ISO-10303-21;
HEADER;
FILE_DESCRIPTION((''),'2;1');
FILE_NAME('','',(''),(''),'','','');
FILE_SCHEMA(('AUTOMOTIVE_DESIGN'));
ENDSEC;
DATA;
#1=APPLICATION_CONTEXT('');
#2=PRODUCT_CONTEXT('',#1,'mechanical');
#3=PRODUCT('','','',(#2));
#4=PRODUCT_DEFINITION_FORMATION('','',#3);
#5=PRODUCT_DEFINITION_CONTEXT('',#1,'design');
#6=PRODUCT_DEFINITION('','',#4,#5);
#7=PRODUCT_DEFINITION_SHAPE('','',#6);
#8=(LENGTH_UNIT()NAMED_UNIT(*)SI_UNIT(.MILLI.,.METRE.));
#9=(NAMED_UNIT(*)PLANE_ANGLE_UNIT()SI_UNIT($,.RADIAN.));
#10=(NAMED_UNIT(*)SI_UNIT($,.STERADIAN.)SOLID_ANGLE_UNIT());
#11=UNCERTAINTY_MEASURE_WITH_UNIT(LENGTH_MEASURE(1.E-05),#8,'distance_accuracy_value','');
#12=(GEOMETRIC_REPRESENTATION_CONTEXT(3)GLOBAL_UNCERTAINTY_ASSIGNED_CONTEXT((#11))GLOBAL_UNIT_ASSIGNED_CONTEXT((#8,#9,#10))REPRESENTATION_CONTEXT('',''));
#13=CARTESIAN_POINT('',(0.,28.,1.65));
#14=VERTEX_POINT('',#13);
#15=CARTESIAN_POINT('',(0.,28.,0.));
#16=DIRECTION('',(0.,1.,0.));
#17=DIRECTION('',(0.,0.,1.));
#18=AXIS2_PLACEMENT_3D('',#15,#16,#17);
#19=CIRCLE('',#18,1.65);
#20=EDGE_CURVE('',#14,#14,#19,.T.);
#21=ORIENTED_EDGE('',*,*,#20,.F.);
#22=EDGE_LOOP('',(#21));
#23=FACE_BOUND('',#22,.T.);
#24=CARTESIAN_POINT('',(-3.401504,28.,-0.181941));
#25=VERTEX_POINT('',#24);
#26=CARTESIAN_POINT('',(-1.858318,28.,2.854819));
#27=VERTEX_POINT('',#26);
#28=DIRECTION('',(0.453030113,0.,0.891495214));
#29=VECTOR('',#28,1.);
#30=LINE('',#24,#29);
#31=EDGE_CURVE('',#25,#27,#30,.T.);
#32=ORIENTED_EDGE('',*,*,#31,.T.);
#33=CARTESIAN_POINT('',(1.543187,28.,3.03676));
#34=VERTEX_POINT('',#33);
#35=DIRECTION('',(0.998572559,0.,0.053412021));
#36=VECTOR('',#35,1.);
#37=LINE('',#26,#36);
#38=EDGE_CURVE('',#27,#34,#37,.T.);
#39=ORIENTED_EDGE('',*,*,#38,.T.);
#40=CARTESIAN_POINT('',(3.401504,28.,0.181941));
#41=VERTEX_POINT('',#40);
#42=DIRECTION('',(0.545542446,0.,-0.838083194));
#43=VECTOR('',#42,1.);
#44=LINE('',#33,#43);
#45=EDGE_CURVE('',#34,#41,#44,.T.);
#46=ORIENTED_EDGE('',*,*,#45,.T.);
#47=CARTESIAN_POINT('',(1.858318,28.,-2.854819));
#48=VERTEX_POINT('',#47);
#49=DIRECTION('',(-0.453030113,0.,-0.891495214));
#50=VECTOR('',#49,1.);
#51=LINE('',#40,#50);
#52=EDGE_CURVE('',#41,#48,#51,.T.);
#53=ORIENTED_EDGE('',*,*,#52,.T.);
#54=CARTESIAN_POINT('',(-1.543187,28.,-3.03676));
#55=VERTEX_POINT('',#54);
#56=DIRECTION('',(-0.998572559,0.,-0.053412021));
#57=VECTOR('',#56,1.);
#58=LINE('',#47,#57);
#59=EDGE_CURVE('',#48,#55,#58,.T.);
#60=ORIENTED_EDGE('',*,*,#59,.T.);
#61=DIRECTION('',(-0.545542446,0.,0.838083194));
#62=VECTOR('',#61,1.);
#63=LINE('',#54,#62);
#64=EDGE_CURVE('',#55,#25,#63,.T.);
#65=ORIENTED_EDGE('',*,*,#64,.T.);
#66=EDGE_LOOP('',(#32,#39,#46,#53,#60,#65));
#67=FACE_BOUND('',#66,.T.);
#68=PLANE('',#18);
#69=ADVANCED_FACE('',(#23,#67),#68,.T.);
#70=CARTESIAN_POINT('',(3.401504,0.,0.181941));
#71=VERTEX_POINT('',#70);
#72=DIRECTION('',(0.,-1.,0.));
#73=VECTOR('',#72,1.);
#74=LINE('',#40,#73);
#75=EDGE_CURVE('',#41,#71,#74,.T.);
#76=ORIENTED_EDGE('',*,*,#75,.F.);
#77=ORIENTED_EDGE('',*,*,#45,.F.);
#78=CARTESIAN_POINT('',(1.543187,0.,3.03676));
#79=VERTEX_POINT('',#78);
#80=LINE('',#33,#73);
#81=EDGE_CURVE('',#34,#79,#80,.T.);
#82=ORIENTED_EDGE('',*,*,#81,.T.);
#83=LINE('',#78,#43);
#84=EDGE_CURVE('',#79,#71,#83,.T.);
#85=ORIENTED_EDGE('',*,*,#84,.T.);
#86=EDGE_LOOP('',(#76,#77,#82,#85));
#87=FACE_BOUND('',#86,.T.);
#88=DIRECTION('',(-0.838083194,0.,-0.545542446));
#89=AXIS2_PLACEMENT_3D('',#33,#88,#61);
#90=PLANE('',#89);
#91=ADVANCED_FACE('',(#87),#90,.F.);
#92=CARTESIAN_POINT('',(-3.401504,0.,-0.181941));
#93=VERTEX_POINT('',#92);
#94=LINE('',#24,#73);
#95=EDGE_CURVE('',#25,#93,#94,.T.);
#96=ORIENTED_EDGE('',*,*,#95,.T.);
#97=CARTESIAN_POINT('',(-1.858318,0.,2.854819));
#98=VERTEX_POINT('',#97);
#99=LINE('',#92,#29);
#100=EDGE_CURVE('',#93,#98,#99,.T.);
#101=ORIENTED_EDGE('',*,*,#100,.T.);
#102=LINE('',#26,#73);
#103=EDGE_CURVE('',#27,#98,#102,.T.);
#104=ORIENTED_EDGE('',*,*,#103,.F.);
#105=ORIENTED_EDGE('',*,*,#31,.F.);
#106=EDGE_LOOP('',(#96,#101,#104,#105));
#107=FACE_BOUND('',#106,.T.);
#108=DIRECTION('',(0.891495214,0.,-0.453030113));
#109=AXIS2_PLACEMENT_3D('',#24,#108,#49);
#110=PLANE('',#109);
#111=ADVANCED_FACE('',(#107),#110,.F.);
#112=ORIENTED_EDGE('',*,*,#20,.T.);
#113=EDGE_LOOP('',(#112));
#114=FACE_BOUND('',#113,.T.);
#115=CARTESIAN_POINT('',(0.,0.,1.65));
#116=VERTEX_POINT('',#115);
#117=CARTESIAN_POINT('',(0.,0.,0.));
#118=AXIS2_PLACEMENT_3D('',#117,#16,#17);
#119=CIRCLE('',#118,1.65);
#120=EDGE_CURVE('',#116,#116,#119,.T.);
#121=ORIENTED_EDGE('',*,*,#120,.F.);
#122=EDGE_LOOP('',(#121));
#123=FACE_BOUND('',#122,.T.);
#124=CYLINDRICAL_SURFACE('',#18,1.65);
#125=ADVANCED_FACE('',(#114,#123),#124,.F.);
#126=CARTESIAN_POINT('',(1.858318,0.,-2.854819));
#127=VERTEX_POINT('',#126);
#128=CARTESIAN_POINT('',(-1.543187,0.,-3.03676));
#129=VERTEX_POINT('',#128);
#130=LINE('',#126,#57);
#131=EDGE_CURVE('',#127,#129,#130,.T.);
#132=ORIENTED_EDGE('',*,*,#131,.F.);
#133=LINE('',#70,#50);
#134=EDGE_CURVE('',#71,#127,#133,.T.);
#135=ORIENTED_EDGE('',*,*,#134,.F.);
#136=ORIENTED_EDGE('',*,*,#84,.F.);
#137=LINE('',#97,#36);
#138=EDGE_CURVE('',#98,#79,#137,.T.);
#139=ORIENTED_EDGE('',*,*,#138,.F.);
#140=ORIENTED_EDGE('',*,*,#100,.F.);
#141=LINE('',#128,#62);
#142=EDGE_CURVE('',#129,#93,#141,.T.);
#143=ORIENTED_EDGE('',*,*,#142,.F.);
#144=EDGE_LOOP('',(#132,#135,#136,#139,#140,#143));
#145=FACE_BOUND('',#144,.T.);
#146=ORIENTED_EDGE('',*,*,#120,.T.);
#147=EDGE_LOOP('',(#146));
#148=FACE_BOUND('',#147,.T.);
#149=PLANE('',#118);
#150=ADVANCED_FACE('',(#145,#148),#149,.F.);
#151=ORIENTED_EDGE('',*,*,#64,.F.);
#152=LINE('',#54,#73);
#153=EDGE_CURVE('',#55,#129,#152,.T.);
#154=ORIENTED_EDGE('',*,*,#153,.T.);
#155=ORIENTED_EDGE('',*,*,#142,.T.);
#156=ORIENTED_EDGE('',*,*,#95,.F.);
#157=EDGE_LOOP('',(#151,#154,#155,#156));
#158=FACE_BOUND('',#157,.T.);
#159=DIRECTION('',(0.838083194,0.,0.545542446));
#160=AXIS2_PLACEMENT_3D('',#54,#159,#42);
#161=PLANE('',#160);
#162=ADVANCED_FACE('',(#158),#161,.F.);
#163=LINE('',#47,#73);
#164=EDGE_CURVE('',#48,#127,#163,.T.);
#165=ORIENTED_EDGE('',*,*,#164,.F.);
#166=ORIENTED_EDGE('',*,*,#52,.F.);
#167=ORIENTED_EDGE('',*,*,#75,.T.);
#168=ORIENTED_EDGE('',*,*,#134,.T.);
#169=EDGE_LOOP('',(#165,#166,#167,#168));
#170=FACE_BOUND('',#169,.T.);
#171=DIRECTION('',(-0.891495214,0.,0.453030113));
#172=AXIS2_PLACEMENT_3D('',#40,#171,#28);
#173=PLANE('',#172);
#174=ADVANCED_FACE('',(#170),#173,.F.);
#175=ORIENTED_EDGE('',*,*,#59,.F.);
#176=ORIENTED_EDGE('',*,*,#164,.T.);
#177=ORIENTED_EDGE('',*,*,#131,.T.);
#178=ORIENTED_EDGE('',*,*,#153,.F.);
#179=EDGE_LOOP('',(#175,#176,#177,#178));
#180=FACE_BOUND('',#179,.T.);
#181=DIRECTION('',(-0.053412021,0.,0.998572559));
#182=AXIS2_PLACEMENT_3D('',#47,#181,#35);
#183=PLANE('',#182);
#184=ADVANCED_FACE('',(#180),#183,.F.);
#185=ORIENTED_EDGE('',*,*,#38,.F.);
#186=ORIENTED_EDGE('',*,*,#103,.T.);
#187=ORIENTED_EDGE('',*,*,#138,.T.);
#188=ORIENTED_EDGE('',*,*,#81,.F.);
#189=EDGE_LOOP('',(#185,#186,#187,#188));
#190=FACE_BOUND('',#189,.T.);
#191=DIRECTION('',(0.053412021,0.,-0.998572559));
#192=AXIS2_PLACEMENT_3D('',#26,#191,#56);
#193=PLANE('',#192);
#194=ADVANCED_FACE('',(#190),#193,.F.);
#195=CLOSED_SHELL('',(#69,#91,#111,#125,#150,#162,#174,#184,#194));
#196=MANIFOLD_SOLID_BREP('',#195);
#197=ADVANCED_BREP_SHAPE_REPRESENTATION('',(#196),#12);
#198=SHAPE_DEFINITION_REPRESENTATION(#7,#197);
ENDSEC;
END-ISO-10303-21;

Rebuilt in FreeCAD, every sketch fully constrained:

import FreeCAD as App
import Part
import Sketcher

V = App.Vector
Q = App.Units.Quantity

doc = App.newDocument("Part")
body = doc.addObject("PartDesign::Body", "Body")

sketch1 = doc.addObject("Sketcher::SketchObject", "Sketch")
body.addObject(sketch1)
sketch1.AttachmentSupport = (doc.XZ_Plane, [""])
sketch1.MapMode = "FlatFace"
sketch1.addGeometry(Part.LineSegment(V(3.4, 0.2, 0), V(1.9, -2.9, 0)), False)
sketch1.addGeometry(Part.LineSegment(V(1.9, -2.9, 0), V(-1.5, -3, 0)), False)
sketch1.addGeometry(Part.LineSegment(V(-1.5, -3, 0), V(-3.4, -0.2, 0)), False)
sketch1.addGeometry(Part.LineSegment(V(-3.4, -0.2, 0), V(-1.9, 2.9, 0)), False)
sketch1.addGeometry(Part.LineSegment(V(-1.9, 2.9, 0), V(1.5, 3, 0)), False)
sketch1.addGeometry(Part.LineSegment(V(1.5, 3, 0), V(3.4, 0.2, 0)), False)
sketch1.addConstraint(Sketcher.Constraint("Coincident", 0, 2, 1, 1))
sketch1.addConstraint(Sketcher.Constraint("Coincident", 1, 2, 2, 1))
sketch1.addConstraint(Sketcher.Constraint("Coincident", 2, 2, 3, 1))
sketch1.addConstraint(Sketcher.Constraint("Coincident", 3, 2, 4, 1))
sketch1.addConstraint(Sketcher.Constraint("Coincident", 4, 2, 5, 1))
sketch1.addConstraint(Sketcher.Constraint("Coincident", 5, 2, 0, 1))
sketch1.addConstraint(Sketcher.Constraint("Symmetric", 0, 2, 3, 2, -1, 1))
sketch1.addConstraint(Sketcher.Constraint("Symmetric", 1, 2, 4, 2, -1, 1))
sketch1.addConstraint(Sketcher.Constraint("Symmetric", 2, 2, 5, 2, -1, 1))
sketch1.addConstraint(Sketcher.Constraint("Equal", 0, 1))
sketch1.addConstraint(Sketcher.Constraint("Equal", 1, 2))
sketch1.addConstraint(Sketcher.Constraint("DistanceY", 2, 2, 4, 2, Q("3.2187 mm")))
sketch1.addConstraint(Sketcher.Constraint("DistanceY", 0, 2, -1, 1, Q("2.854819 mm")))
sketch1.addConstraint(Sketcher.Constraint("DistanceY", 1, 2, -1, 1, Q("3.03676 mm")))
sketch1.addConstraint(Sketcher.Constraint("DistanceX", 2, 2, 0, 2, Q("5.259822 mm")))
pad1 = doc.addObject("PartDesign::Pad", "Pad")
body.addObject(pad1)
pad1.Profile = sketch1
pad1.Length = 28
pad1.Reversed = True

sketch2 = doc.addObject("Sketcher::SketchObject", "Sketch001")
body.addObject(sketch2)
sketch2.AttachmentSupport = (doc.XZ_Plane, [""])
sketch2.MapMode = "FlatFace"
sketch2.AttachmentOffset = App.Placement(V(0, 0, -28), App.Rotation())
sketch2.addGeometry(Part.Circle(V(0, 0, 0), V(0, 0, 1), 1.6), False)
sketch2.addConstraint(Sketcher.Constraint("Coincident", 0, 3, -1, 1))
sketch2.addConstraint(Sketcher.Constraint("Diameter", 0, Q("3.3 mm")))
doc.recompute()
hole = doc.addObject("PartDesign::Hole", "Hole")
body.addObject(hole)
hole.Profile = sketch2
hole.ThreadType = "None"
hole.Diameter = 3.3
hole.DepthType = "ThroughAll"
hole.Reversed = True

doc.recompute()
